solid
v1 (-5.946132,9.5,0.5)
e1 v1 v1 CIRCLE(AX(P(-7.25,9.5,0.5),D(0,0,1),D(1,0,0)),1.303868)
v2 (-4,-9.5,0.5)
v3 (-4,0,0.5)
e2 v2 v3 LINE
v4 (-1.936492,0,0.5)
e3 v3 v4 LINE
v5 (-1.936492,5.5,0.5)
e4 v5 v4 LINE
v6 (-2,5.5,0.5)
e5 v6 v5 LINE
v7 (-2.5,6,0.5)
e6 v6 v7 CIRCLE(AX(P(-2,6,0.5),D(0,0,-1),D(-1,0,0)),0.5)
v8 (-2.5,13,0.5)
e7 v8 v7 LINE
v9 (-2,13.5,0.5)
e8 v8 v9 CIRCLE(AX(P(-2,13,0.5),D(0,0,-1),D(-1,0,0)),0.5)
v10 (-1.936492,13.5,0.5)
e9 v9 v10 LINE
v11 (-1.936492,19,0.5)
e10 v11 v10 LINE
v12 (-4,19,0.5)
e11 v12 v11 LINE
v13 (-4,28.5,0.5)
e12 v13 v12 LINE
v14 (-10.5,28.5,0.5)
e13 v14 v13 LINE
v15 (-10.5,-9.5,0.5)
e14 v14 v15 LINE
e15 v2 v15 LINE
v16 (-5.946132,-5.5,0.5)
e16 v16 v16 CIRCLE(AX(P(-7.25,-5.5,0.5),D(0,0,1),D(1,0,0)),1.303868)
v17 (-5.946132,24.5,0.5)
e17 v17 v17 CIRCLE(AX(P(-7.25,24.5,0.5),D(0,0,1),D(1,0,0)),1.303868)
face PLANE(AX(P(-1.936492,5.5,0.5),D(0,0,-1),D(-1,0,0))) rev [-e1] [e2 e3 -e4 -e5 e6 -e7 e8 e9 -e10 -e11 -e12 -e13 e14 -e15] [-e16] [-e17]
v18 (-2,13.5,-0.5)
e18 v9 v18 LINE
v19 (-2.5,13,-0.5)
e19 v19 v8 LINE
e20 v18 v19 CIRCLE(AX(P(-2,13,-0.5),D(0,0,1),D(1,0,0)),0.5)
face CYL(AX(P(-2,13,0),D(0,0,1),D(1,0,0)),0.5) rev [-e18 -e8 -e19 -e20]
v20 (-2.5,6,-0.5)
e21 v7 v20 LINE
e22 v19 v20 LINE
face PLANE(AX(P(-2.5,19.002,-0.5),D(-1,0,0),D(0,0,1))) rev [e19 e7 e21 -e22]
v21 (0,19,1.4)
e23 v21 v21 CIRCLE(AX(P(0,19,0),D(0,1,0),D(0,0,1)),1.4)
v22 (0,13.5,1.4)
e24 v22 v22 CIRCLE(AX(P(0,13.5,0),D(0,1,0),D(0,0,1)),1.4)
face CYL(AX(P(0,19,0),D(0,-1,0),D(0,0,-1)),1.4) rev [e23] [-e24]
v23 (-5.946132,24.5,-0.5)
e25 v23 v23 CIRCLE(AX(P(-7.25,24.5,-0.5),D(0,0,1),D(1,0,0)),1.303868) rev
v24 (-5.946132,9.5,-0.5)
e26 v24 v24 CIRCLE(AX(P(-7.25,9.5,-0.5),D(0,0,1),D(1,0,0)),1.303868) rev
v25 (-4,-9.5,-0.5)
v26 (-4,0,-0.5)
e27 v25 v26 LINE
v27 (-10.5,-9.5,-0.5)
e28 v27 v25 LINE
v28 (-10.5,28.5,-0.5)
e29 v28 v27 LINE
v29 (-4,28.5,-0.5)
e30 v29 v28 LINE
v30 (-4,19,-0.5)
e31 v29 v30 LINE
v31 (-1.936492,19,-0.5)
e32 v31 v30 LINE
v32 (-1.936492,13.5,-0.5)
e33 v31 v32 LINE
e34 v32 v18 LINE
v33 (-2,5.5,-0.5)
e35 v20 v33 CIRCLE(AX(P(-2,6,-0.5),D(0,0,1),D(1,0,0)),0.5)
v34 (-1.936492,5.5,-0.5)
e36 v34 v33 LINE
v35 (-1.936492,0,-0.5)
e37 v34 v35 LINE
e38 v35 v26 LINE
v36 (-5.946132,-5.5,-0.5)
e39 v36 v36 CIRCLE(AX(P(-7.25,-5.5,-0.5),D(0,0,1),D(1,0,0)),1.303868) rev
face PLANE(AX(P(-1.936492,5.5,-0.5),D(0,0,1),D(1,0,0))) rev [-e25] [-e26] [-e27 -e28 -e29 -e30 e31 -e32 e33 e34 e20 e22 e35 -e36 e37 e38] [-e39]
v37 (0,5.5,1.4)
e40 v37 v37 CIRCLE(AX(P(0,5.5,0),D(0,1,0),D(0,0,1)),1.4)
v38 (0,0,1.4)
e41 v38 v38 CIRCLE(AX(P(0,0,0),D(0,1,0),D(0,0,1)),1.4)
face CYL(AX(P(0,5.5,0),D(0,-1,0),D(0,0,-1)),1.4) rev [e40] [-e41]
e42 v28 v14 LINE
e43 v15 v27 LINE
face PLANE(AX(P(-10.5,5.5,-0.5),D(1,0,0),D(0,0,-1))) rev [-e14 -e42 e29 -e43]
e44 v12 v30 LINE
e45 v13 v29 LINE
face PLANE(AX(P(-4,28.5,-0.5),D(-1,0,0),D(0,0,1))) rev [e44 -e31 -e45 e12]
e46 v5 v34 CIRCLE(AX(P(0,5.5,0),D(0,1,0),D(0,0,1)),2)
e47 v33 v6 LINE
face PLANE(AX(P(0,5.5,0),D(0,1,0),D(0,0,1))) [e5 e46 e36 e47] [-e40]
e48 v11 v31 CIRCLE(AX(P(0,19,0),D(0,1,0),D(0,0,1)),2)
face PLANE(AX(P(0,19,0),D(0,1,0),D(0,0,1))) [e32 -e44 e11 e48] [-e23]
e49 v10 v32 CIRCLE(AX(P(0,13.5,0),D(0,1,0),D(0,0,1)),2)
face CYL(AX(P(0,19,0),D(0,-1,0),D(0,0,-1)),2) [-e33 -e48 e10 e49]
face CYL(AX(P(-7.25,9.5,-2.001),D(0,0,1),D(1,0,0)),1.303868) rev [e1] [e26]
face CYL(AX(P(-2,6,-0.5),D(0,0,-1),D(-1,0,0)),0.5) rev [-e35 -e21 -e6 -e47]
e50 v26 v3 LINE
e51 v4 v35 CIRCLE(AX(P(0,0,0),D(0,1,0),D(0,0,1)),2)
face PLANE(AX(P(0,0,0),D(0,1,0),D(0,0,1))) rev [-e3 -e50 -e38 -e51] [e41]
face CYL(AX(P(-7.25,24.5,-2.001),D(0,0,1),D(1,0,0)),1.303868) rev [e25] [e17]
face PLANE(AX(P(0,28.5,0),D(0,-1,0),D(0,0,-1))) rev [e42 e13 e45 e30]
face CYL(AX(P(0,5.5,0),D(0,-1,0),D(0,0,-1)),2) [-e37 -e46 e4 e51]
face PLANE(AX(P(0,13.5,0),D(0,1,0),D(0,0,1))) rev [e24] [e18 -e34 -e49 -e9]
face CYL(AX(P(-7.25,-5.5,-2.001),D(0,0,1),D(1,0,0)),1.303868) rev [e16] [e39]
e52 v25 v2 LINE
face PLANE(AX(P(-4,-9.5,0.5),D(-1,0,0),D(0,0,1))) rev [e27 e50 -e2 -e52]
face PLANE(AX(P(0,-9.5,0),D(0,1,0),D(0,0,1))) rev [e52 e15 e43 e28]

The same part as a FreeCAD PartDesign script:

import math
import FreeCAD as App
import Part
import Sketcher
Q = App.Units.Quantity


def edges_at(feature, points):
    """Names of the edges that pass closest to the given points."""
    edges = feature.Shape.Edges
    near = lambda p: min(range(len(edges)), key=lambda i: edges[i].distToShape(Part.Vertex(*p))[0])
    return sorted({f"Edge{near(p) + 1}" for p in points})


def add_polygon(sketch, points):
    """Adds a closed chain of lines whose ends are joined by coincident constraints."""
    first, n = sketch.GeometryCount, len(points)
    for a, b in zip(points, points[1:] + points[:1]):
        sketch.addGeometry(Part.LineSegment(App.Vector(*a, 0), App.Vector(*b, 0)), False)
    for i in range(n):
        sketch.addConstraint(Sketcher.Constraint("Coincident", first + i, 2, first + (i + 1) % n, 1))

doc = App.newDocument("Part")
params = doc.addObject("Spreadsheet::Sheet", "Params")
for row, (alias, value) in enumerate([
    ("sketch1_radius", "2 mm"),
    ("sketch1_diameter", "2.8 mm"),
    ("sketch1_height", "1 mm"),
    ("pad1_length", "5.5 mm"),
    ("sketch2_radius", "2 mm"),
    ("sketch2_diameter", "2.8 mm"),
    ("sketch2_height", "1 mm"),
    ("pad2_length", "5.5 mm"),
    ("sketch3_width", "8 mm"),
    ("sketch3_height", "1 mm"),
    ("pad3_length", "13.5 mm"),
    ("sketch4_height", "1 mm"),
    ("sketch4_width", "6.5 mm"),
    ("pad4_length", "9.5 mm"),
    ("sketch5_height", "1 mm"),
    ("sketch5_width", "6.5 mm"),
    ("pad5_length", "9.5 mm"),
    ("fillet_radius", "0.5 mm"),
], start=1):
    params.set(f"A{row}", alias)
    params.set(f"B{row}", "=" + value)
    params.setAlias(f"B{row}", alias)

body = doc.addObject("PartDesign::Body", "Body")

sketch1 = doc.addObject("Sketcher::SketchObject", "Sketch")
body.addObject(sketch1)
sketch1.AttachmentSupport = (doc.XZ_Plane, [""])
sketch1.MapMode = "FlatFace"
sketch1.addGeometry([
    Part.LineSegment(App.Vector(-1.936492, -0.5, 0), App.Vector(-10.5, -0.5, 0)),
    Part.LineSegment(App.Vector(-10.5, -0.5, 0), App.Vector(-10.5, 0.5, 0)),
    Part.LineSegment(App.Vector(-10.5, 0.5, 0), App.Vector(-1.936492, 0.5, 0)),
    Part.ArcOfCircle(Part.Circle(App.Vector(0, 0, 0), App.Vector(0, 0, 1), 2), math.radians(-165.522488), math.radians(165.522488)),
    Part.Circle(App.Vector(0, 0, 0), App.Vector(0, 0, 1), 1.4),
], False)
sketch1.addConstraint([
    Sketcher.Constraint("Coincident", 0, 2, 1, 1),
    Sketcher.Constraint("Coincident", 1, 2, 2, 1),
    Sketcher.Constraint("Coincident", 2, 2, 3, 2),
    Sketcher.Constraint("Coincident", 3, 1, 0, 1),
    Sketcher.Constraint("Horizontal", 0),
    Sketcher.Constraint("Vertical", 1),
    Sketcher.Constraint("Horizontal", 2),
    Sketcher.Constraint("Coincident", 3, 3, -1, 1),
    Sketcher.Constraint("Coincident", 4, 3, -1, 1),
    Sketcher.Constraint("Vertical", 2, 2, 3, 1),
    Sketcher.Constraint("Radius", 3, Q("2 mm")),
    Sketcher.Constraint("Diameter", 4, Q("2.8 mm")),
    Sketcher.Constraint("DistanceY", 1, 1, 1, 2, Q("1 mm")),
    Sketcher.Constraint("DistanceX", 0, 2, -1, 1, Q("10.5 mm")),
])
sketch1.setExpression("Constraints[10]", "Params.sketch1_radius")
sketch1.setExpression("Constraints[11]", "Params.sketch1_diameter")
sketch1.setExpression("Constraints[12]", "Params.sketch1_height")
pad1 = doc.addObject("PartDesign::Pad", "Pad")
body.addObject(pad1)
pad1.Profile = sketch1
pad1.setExpression("Length", "Params.pad1_length")
pad1.Reversed = True
body2 = doc.addObject("PartDesign::Body", "Body001")

sketch2 = doc.addObject("Sketcher::SketchObject", "Sketch001")
body2.addObject(sketch2)
sketch2.AttachmentSupport = (doc.getObject("XZ_Plane001"), [""])
sketch2.MapMode = "FlatFace"
sketch2.AttachmentOffset = App.Placement(App.Vector(0, 0, -13.5), App.Rotation())
sketch2.addGeometry([
    Part.LineSegment(App.Vector(-1.936492, -0.5, 0), App.Vector(-10.5, -0.5, 0)),
    Part.LineSegment(App.Vector(-10.5, -0.5, 0), App.Vector(-10.5, 0.5, 0)),
    Part.LineSegment(App.Vector(-10.5, 0.5, 0), App.Vector(-1.936492, 0.5, 0)),
    Part.ArcOfCircle(Part.Circle(App.Vector(0, 0, 0), App.Vector(0, 0, 1), 2), math.radians(-165.522488), math.radians(165.522488)),
    Part.Circle(App.Vector(0, 0, 0), App.Vector(0, 0, 1), 1.4),
], False)
sketch2.addConstraint([
    Sketcher.Constraint("Coincident", 0, 2, 1, 1),
    Sketcher.Constraint("Coincident", 1, 2, 2, 1),
    Sketcher.Constraint("Coincident", 2, 2, 3, 2),
    Sketcher.Constraint("Coincident", 3, 1, 0, 1),
    Sketcher.Constraint("Horizontal", 0),
    Sketcher.Constraint("Vertical", 1),
    Sketcher.Constraint("Horizontal", 2),
    Sketcher.Constraint("Coincident", 3, 3, -1, 1),
    Sketcher.Constraint("Coincident", 4, 3, -1, 1),
    Sketcher.Constraint("Vertical", 2, 2, 3, 1),
    Sketcher.Constraint("Radius", 3, Q("2 mm")),
    Sketcher.Constraint("Diameter", 4, Q("2.8 mm")),
    Sketcher.Constraint("DistanceY", 1, 1, 1, 2, Q("1 mm")),
    Sketcher.Constraint("DistanceX", 0, 2, -1, 1, Q("10.5 mm")),
])
sketch2.setExpression("Constraints[10]", "Params.sketch2_radius")
sketch2.setExpression("Constraints[11]", "Params.sketch2_diameter")
sketch2.setExpression("Constraints[12]", "Params.sketch2_height")
pad2 = doc.addObject("PartDesign::Pad", "Pad001")
body2.addObject(pad2)
pad2.Profile = sketch2
pad2.setExpression("Length", "Params.pad2_length")
pad2.Reversed = True
body.AllowCompound = True
doc.recompute()

boolean = doc.addObject("PartDesign::Boolean", "Boolean")
body.addObject(boolean)
boolean.Type = "Fuse"
boolean.addObjects([body2])

sketch3 = doc.addObject("Sketcher::SketchObject", "Sketch002")
body.addObject(sketch3)
sketch3.AttachmentSupport = (doc.XZ_Plane, [""])
sketch3.MapMode = "FlatFace"
sketch3.AttachmentOffset = App.Placement(App.Vector(0, 0, -5.5), App.Rotation())
add_polygon(sketch3, [(-10.5, -0.5), (-10.5, 0.5), (-2.5, 0.5), (-2.5, -0.5)])
sketch3.addConstraint([
    Sketcher.Constraint("Vertical", 0),
    Sketcher.Constraint("Horizontal", 1),
    Sketcher.Constraint("Vertical", 2),
    Sketcher.Constraint("Horizontal", 3),
    Sketcher.Constraint("DistanceX", 1, 1, 1, 2, Q("8 mm")),
    Sketcher.Constraint("DistanceY", 0, 1, 0, 2, Q("1 mm")),
    Sketcher.Constraint("DistanceX", 0, 2, -1, 1, Q("10.5 mm")),
    Sketcher.Constraint("DistanceY", -1, 1, 0, 2, Q("0.5 mm")),
])
sketch3.setExpression("Constraints[8]", "Params.sketch3_width")
sketch3.setExpression("Constraints[9]", "Params.sketch3_height")
pad3 = doc.addObject("PartDesign::Pad", "Pad002")
body.addObject(pad3)
pad3.Profile = sketch3
pad3.setExpression("Length", "Params.pad3_length")
pad3.Reversed = True

sketch4 = doc.addObject("Sketcher::SketchObject", "Sketch003")
body.addObject(sketch4)
sketch4.AttachmentSupport = (doc.XZ_Plane, [""])
sketch4.MapMode = "FlatFace"
sketch4.AttachmentOffset = App.Placement(App.Vector(0, 0, -19), App.Rotation())
add_polygon(sketch4, [(-10.5, -0.5), (-10.5, 0.5), (-4, 0.5), (-4, -0.5)])
sketch4.addConstraint([
    Sketcher.Constraint("Vertical", 0),
    Sketcher.Constraint("Horizontal", 1),
    Sketcher.Constraint("Vertical", 2),
    Sketcher.Constraint("Horizontal", 3),
    Sketcher.Constraint("DistanceY", 0, 1, 0, 2, Q("1 mm")),
    Sketcher.Constraint("DistanceX", 1, 1, 1, 2, Q("6.5 mm")),
    Sketcher.Constraint("DistanceX", 1, 2, -1, 1, Q("4 mm")),
    Sketcher.Constraint("DistanceY", -1, 1, 0, 2, Q("0.5 mm")),
])
sketch4.setExpression("Constraints[8]", "Params.sketch4_height")
sketch4.setExpression("Constraints[9]", "Params.sketch4_width")
pad4 = doc.addObject("PartDesign::Pad", "Pad003")
body.addObject(pad4)
pad4.Profile = sketch4
pad4.setExpression("Length", "Params.pad4_length")
pad4.Reversed = True

sketch5 = doc.addObject("Sketcher::SketchObject", "Sketch004")
body.addObject(sketch5)
sketch5.AttachmentSupport = (doc.XZ_Plane, [""])
sketch5.MapMode = "FlatFace"
add_polygon(sketch5, [(-10.5, 0.5), (-10.5, -0.5), (-4, -0.5), (-4, 0.5)])
sketch5.addConstraint([
    Sketcher.Constraint("Vertical", 0),
    Sketcher.Constraint("Horizontal", 1),
    Sketcher.Constraint("Vertical", 2),
    Sketcher.Constraint("Horizontal", 3),
    Sketcher.Constraint("DistanceY", 0, 2, 0, 1, Q("1 mm")),
    Sketcher.Constraint("DistanceX", 1, 1, 1, 2, Q("6.5 mm")),
    Sketcher.Constraint("DistanceX", 1, 2, -1, 1, Q("4 mm")),
    Sketcher.Constraint("DistanceY", 0, 2, -1, 1, Q("0.5 mm")),
])
sketch5.setExpression("Constraints[8]", "Params.sketch5_height")
sketch5.setExpression("Constraints[9]", "Params.sketch5_width")
pad5 = doc.addObject("PartDesign::Pad", "Pad004")
body.addObject(pad5)
pad5.Profile = sketch5
pad5.setExpression("Length", "Params.pad5_length")
doc.recompute()

fillet = doc.addObject("PartDesign::Fillet", "Fillet")
body.addObject(fillet)
fillet.Base = (pad5, edges_at(pad5, [(-2.5, 13.5, 0), (-2.5, 5.5, 0)]))
fillet.setExpression("Radius", "Params.fillet_radius")

sketch6 = doc.addObject("Sketcher::SketchObject", "Sketch005")
body.addObject(sketch6)
sketch6.AttachmentSupport = (doc.XY_Plane, [""])
sketch6.MapMode = "FlatFace"
sketch6.AttachmentOffset = App.Placement(App.Vector(0, 0, 0.5), App.Rotation())
sketch6.addGeometry(Part.Circle(App.Vector(-7.25, -5.5, 0), App.Vector(0, 0, 1), 1.303868), False)
sketch6.addConstraint([
    Sketcher.Constraint("DistanceY", 0, 3, -1, 1, Q("5.5 mm")),
    Sketcher.Constraint("DistanceX", 0, 3, -1, 1, Q("7.25 mm")),
    Sketcher.Constraint("Diameter", 0, Q("2.607736 mm")),
])
pocket1 = doc.addObject("PartDesign::Pocket", "Pocket")
body.addObject(pocket1)
pocket1.Profile = sketch6
pocket1.Type = "UpToFirst"

sketch7 = doc.addObject("Sketcher::SketchObject", "Sketch006")
body.addObject(sketch7)
sketch7.AttachmentSupport = (doc.XY_Plane, [""])
sketch7.MapMode = "FlatFace"
sketch7.AttachmentOffset = App.Placement(App.Vector(0, 0, 0.5), App.Rotation())
sketch7.addGeometry(Part.Circle(App.Vector(-7.25, 9.5, 0), App.Vector(0, 0, 1), 1.303868), False)
sketch7.addConstraint([
    Sketcher.Constraint("DistanceY", -1, 1, 0, 3, Q("9.5 mm")),
    Sketcher.Constraint("DistanceX", 0, 3, -1, 1, Q("7.25 mm")),
    Sketcher.Constraint("Diameter", 0, Q("2.607736 mm")),
])
pocket2 = doc.addObject("PartDesign::Pocket", "Pocket001")
body.addObject(pocket2)
pocket2.Profile = sketch7
pocket2.Type = "UpToFirst"

sketch8 = doc.addObject("Sketcher::SketchObject", "Sketch007")
body.addObject(sketch8)
sketch8.AttachmentSupport = (doc.XY_Plane, [""])
sketch8.MapMode = "FlatFace"
sketch8.AttachmentOffset = App.Placement(App.Vector(0, 0, 0.5), App.Rotation())
sketch8.addGeometry(Part.Circle(App.Vector(-7.25, 24.5, 0), App.Vector(0, 0, 1), 1.303868), False)
sketch8.addConstraint([
    Sketcher.Constraint("DistanceY", -1, 1, 0, 3, Q("24.5 mm")),
    Sketcher.Constraint("DistanceX", 0, 3, -1, 1, Q("7.25 mm")),
    Sketcher.Constraint("Diameter", 0, Q("2.607736 mm")),
])
pocket3 = doc.addObject("PartDesign::Pocket", "Pocket002")
body.addObject(pocket3)
pocket3.Profile = sketch8
pocket3.Type = "UpToFirst"

doc.recompute()
